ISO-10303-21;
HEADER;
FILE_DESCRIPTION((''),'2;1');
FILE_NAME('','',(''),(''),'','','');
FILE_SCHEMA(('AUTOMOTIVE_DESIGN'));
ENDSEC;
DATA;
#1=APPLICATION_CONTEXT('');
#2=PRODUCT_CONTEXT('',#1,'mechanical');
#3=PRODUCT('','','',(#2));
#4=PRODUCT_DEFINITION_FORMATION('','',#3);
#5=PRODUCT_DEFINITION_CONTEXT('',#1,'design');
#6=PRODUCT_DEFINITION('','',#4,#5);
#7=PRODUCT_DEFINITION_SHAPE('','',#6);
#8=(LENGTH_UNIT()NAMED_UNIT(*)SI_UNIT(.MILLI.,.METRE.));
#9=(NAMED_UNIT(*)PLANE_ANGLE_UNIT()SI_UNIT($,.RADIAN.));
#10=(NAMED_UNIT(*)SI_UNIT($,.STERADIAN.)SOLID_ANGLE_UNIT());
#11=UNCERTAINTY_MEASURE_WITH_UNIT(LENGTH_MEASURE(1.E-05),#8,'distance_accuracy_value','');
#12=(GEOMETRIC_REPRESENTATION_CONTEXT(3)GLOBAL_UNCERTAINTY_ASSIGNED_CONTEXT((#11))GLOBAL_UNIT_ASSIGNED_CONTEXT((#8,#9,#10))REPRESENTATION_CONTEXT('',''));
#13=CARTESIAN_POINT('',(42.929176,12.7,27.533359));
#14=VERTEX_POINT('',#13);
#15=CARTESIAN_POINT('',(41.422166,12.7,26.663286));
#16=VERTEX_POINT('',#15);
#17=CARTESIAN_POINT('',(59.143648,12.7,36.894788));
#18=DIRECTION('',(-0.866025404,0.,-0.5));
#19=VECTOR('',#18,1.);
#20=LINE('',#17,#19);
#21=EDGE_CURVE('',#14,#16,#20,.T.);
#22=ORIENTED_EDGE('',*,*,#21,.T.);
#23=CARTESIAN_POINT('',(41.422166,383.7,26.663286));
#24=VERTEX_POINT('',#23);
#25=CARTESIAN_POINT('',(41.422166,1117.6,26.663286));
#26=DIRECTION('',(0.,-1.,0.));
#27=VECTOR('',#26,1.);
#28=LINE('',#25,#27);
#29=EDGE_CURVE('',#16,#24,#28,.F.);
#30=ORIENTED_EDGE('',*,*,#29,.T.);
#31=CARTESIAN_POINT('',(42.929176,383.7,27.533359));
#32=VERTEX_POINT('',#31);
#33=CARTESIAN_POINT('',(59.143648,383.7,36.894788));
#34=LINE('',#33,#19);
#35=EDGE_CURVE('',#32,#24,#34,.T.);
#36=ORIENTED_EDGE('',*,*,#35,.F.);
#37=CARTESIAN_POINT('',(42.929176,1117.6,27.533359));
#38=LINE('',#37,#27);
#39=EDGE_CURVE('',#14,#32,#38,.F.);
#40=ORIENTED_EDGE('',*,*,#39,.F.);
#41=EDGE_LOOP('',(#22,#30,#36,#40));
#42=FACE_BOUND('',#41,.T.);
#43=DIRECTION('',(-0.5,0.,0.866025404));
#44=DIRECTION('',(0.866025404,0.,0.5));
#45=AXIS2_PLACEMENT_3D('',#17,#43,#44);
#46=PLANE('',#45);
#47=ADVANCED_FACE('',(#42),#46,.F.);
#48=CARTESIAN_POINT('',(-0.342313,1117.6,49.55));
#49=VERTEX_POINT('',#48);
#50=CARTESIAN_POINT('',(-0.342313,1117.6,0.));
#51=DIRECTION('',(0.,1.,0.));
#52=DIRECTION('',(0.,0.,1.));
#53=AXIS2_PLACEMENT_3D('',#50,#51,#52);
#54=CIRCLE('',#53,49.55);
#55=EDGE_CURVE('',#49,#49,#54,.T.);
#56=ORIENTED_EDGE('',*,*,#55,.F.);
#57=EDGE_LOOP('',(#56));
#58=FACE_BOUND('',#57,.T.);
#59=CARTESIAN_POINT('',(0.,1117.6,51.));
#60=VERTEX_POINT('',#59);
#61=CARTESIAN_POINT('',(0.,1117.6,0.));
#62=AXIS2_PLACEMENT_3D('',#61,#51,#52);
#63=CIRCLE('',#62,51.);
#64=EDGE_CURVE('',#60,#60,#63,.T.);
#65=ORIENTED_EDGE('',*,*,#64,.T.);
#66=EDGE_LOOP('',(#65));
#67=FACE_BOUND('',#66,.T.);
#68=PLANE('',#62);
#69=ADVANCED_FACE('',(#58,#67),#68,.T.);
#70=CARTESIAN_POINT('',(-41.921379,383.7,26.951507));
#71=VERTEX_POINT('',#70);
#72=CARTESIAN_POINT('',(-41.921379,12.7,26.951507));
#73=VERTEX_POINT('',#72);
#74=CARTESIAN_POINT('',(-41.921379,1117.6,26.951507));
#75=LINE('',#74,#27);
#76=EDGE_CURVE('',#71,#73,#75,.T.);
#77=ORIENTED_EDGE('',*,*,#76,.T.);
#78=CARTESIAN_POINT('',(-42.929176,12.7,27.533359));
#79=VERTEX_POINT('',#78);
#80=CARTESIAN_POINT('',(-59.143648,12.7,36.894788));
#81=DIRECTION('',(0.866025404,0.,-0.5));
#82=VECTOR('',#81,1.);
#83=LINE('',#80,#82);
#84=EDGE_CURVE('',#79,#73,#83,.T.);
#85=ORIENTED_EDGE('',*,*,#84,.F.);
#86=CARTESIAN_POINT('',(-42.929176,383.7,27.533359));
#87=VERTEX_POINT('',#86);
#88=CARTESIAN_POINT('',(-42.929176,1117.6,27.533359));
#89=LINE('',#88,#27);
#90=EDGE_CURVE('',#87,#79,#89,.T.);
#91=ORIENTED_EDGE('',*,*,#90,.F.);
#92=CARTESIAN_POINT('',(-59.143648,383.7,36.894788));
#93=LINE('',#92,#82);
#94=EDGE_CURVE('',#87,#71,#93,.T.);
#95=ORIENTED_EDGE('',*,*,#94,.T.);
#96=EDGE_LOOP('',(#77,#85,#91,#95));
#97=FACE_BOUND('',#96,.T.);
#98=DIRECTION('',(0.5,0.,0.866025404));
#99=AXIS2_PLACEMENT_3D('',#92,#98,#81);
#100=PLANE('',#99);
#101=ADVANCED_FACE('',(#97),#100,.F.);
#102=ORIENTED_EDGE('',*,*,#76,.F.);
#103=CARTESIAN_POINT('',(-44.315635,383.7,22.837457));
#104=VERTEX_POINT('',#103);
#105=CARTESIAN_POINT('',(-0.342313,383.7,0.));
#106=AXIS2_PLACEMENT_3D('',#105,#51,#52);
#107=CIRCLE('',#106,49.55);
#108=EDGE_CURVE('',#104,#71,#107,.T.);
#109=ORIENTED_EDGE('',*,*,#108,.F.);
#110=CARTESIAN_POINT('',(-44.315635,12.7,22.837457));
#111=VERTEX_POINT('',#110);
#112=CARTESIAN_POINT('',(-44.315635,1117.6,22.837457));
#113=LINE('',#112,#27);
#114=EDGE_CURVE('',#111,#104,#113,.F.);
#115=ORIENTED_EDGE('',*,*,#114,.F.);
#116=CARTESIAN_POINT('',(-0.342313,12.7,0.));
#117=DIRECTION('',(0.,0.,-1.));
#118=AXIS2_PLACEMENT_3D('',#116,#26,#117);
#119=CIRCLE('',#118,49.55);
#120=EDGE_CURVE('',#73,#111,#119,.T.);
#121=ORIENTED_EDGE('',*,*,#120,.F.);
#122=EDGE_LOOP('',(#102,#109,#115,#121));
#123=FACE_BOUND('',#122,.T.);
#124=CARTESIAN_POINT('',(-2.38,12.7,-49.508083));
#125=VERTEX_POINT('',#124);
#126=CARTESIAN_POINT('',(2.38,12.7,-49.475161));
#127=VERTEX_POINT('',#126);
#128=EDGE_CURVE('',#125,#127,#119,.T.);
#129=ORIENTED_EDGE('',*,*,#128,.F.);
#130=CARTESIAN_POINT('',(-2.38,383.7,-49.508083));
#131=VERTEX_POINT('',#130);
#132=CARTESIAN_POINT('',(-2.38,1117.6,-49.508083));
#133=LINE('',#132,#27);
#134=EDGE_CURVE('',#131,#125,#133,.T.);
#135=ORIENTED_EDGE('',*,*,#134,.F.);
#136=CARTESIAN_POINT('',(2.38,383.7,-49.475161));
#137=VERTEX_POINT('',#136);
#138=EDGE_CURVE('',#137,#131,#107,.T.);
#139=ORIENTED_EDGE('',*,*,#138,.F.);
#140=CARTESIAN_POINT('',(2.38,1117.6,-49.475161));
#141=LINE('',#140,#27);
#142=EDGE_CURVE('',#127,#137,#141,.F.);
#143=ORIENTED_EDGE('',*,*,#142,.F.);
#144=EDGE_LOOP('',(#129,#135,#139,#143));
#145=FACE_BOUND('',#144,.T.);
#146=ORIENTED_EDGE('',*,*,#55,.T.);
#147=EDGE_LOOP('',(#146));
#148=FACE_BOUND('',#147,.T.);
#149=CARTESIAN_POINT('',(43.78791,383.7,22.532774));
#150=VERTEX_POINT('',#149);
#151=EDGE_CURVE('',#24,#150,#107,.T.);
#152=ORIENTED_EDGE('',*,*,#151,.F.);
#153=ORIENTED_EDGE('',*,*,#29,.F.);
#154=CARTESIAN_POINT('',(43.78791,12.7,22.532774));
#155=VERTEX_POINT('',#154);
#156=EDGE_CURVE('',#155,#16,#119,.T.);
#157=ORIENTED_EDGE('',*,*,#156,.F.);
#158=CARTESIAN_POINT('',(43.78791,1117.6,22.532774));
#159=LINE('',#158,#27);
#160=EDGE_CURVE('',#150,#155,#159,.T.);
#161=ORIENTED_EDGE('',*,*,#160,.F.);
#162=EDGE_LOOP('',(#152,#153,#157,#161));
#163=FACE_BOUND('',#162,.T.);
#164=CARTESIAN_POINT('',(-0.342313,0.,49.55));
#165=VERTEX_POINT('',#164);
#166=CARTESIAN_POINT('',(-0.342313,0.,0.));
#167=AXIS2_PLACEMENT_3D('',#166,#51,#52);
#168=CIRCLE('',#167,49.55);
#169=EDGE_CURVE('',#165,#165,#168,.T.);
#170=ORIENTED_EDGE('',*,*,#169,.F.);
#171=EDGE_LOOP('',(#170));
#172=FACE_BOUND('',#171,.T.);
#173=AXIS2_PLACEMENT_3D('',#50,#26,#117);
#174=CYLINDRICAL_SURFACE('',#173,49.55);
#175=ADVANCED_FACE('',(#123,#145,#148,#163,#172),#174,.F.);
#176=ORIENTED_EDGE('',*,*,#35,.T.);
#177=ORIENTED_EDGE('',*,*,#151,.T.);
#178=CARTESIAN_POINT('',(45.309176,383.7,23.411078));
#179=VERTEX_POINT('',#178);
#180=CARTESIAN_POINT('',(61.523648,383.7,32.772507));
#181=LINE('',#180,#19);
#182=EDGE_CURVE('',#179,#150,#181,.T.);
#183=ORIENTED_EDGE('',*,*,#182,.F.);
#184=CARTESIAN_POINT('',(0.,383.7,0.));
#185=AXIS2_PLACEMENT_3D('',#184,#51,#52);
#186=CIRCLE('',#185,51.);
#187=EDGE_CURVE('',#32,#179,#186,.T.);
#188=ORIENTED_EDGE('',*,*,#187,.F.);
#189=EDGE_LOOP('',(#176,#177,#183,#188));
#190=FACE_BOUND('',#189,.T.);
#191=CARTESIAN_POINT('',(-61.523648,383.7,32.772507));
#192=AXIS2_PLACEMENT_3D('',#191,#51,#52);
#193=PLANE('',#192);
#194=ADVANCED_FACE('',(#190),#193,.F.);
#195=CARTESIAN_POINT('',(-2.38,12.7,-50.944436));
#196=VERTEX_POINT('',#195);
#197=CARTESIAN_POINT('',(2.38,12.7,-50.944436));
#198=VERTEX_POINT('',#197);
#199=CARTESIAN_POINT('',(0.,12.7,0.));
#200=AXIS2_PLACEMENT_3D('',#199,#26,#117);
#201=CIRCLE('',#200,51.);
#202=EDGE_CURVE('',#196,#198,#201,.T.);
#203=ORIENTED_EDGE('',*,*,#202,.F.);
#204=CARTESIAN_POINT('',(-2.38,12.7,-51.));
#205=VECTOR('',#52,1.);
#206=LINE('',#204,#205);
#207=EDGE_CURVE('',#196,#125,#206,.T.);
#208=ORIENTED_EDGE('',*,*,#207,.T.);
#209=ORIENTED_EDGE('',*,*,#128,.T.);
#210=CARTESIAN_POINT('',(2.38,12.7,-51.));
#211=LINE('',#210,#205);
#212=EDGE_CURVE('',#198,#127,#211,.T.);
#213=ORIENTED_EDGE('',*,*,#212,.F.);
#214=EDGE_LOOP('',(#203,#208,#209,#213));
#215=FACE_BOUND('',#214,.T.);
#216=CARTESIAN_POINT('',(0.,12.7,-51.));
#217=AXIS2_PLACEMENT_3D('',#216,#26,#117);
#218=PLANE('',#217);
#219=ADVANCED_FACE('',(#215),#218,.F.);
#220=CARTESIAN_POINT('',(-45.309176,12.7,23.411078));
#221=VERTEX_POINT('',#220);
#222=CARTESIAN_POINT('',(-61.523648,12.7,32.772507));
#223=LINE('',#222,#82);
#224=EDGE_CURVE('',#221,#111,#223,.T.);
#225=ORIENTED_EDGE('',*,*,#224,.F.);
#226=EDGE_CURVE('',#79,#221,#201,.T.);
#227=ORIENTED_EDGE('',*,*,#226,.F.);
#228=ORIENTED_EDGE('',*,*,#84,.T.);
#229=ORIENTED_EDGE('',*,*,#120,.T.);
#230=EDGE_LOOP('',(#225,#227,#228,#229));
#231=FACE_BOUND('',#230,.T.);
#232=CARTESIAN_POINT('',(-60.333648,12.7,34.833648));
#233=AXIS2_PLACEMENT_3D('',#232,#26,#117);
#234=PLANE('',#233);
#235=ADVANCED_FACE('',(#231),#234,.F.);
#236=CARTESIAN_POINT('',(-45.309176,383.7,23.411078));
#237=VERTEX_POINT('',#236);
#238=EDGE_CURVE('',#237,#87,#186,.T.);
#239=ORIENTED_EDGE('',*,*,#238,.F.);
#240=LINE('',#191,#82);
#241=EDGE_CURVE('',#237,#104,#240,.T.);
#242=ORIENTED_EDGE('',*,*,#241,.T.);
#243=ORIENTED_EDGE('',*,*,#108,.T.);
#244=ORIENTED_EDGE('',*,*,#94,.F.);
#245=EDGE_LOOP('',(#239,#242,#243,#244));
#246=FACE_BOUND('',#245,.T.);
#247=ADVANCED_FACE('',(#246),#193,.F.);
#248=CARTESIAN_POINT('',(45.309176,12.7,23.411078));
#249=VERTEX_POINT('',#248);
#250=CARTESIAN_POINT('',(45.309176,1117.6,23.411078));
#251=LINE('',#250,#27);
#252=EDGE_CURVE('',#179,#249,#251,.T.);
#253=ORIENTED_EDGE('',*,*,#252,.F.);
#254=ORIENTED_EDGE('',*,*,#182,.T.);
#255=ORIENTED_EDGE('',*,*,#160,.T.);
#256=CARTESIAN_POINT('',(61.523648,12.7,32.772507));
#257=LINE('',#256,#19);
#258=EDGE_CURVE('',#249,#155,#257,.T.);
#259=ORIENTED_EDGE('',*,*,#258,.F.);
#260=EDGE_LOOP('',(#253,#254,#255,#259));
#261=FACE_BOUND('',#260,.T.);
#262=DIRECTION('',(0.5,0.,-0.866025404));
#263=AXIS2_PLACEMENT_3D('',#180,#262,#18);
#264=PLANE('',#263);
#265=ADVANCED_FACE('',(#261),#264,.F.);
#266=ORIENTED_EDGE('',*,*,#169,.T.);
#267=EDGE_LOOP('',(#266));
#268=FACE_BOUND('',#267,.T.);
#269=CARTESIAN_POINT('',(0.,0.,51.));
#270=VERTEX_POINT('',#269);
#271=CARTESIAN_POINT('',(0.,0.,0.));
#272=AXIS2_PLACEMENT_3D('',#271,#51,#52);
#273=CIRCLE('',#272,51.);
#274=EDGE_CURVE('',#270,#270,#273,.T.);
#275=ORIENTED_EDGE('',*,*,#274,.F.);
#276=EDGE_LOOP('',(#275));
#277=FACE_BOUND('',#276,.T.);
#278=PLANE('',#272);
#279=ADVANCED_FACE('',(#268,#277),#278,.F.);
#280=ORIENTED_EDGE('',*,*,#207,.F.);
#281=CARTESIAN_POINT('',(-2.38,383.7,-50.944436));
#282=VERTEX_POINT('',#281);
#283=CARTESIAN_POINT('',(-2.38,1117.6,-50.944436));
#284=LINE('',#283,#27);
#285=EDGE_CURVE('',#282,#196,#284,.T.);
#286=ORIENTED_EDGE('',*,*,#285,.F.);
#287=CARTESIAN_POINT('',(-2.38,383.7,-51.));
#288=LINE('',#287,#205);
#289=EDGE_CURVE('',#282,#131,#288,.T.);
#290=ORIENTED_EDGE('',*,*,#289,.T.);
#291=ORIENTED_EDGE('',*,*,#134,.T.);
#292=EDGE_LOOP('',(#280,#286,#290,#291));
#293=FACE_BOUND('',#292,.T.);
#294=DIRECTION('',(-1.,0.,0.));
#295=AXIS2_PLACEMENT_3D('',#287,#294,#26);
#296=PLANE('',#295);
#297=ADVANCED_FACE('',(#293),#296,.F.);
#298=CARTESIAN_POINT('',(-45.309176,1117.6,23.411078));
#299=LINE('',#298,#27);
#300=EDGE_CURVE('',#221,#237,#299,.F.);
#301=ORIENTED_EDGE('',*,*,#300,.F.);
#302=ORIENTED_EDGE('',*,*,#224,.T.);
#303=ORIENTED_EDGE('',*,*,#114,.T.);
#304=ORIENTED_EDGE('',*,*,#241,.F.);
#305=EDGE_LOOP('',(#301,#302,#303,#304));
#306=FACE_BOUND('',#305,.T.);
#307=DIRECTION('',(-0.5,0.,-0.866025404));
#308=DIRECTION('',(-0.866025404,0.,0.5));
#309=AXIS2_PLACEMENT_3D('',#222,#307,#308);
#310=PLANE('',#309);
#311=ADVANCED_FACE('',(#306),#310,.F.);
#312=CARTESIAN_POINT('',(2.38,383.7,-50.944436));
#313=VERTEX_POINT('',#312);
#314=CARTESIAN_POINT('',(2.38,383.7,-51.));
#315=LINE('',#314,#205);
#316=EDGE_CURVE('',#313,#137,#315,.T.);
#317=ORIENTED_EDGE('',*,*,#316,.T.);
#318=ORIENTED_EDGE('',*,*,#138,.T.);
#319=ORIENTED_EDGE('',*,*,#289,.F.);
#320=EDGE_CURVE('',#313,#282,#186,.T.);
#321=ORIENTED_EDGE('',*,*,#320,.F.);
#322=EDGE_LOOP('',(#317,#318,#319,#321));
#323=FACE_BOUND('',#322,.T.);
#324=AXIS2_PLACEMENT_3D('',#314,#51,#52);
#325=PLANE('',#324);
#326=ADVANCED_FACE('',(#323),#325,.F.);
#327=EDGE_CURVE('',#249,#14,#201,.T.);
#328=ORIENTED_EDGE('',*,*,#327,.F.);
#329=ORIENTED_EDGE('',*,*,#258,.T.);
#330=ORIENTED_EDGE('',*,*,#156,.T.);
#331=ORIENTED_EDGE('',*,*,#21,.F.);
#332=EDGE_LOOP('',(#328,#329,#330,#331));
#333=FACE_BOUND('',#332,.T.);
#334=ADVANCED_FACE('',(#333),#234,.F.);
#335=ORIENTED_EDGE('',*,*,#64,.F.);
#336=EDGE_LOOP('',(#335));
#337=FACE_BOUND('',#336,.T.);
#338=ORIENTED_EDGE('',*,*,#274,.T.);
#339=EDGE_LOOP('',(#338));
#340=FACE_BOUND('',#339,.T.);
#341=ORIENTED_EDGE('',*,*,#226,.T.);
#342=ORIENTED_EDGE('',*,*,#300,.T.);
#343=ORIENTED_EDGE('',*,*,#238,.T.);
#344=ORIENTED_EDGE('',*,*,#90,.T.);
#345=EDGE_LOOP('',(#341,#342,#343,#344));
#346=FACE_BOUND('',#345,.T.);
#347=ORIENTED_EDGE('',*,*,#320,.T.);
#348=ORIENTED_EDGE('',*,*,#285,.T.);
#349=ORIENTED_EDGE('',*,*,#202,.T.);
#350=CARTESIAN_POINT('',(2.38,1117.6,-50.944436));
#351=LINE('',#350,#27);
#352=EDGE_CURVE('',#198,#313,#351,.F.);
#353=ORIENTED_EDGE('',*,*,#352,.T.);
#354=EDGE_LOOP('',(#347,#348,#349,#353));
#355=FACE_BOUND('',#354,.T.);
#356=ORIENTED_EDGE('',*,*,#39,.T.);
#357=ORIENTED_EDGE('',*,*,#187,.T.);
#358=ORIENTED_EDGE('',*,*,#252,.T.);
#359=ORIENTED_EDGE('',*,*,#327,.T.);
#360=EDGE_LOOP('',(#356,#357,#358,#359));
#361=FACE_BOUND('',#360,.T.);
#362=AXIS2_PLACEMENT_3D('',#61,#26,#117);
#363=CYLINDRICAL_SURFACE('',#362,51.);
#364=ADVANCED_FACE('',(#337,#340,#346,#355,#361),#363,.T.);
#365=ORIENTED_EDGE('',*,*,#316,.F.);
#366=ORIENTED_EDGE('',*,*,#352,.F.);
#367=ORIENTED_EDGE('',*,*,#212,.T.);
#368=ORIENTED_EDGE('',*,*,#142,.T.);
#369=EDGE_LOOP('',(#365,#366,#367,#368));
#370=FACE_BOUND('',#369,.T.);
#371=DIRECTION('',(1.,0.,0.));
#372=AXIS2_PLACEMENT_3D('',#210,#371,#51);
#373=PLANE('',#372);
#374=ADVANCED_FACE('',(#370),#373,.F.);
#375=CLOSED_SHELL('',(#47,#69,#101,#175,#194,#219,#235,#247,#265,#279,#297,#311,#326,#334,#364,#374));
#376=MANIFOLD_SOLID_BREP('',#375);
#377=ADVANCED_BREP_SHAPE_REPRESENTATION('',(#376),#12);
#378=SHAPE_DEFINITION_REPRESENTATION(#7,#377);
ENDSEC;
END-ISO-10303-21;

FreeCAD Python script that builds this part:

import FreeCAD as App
import Part
import Sketcher
from FreeCAD import Vector
Q = App.Units.Quantity

doc = App.newDocument("Part")
body = doc.addObject("PartDesign::Body", "Body")

# Sketch on XZ plane
sketch1 = body.newObject("Sketcher::SketchObject", "Sketch")
sketch1.AttachmentSupport = (doc.getObject("XZ_Plane"), [""])
sketch1.MapMode = "FlatFace"
sketch1.addGeometry(Part.Circle(Vector(0, 0, 0), Vector(0, 0, 1), 51), False)
sketch1.addGeometry(Part.Circle(Vector(0, 0, 0), Vector(0, 0, 1), 50), False)
sketch1.addConstraint(Sketcher.Constraint("Coincident", 0, 3, -1, 1))
sketch1.addConstraint(Sketcher.Constraint("PointOnObject", 1, 3, -1))
sketch1.addConstraint(Sketcher.Constraint("Diameter", 0, Q("102 mm")))
sketch1.addConstraint(Sketcher.Constraint("Diameter", 1, Q("99.1 mm")))
sketch1.addConstraint(Sketcher.Constraint("DistanceX", 1, 3, -1, 1, Q("0.342313 mm")))
pad1 = body.newObject("PartDesign::Pad", "Pad")
pad1.Profile = sketch1
pad1.Length = 1117.6
pad1.Reversed = True

# Sketch on XY plane
sketch2 = body.newObject("Sketcher::SketchObject", "Sketch001")
sketch2.AttachmentSupport = (doc.getObject("XY_Plane"), [""])
sketch2.MapMode = "FlatFace"
sketch2.addGeometry(Part.LineSegment(Vector(2.4, 12.7, 0), Vector(2.4, 383.7, 0)), False)
sketch2.addGeometry(Part.LineSegment(Vector(2.4, 383.7, 0), Vector(-2.4, 383.7, 0)), False)
sketch2.addGeometry(Part.LineSegment(Vector(-2.4, 383.7, 0), Vector(-2.4, 12.7, 0)), False)
sketch2.addGeometry(Part.LineSegment(Vector(-2.4, 12.7, 0), Vector(2.4, 12.7, 0)), False)
sketch2.addConstraint(Sketcher.Constraint("Coincident", 0, 2, 1, 1))
sketch2.addConstraint(Sketcher.Constraint("Coincident", 1, 2, 2, 1))
sketch2.addConstraint(Sketcher.Constraint("Coincident", 2, 2, 3, 1))
sketch2.addConstraint(Sketcher.Constraint("Coincident", 3, 2, 0, 1))
sketch2.addConstraint(Sketcher.Constraint("Vertical", 0))
sketch2.addConstraint(Sketcher.Constraint("Horizontal", 1))
sketch2.addConstraint(Sketcher.Constraint("Vertical", 2))
sketch2.addConstraint(Sketcher.Constraint("Horizontal", 3))
sketch2.addConstraint(Sketcher.Constraint("DistanceY", 0, 1, 0, 2, Q("371 mm")))
sketch2.addConstraint(Sketcher.Constraint("DistanceX", 1, 2, 1, 1, Q("4.76 mm")))
sketch2.addConstraint(Sketcher.Constraint("DistanceY", -1, 1, 0, 2, Q("383.7 mm")))
sketch2.addConstraint(Sketcher.Constraint("DistanceX", -1, 1, 0, 2, Q("2.38 mm")))
pocket1 = body.newObject("PartDesign::Pocket", "Pocket")
pocket1.Profile = sketch2
pocket1.Type = "ThroughAll"
doc.recompute()

polarpattern = body.newObject("PartDesign::PolarPattern", "PolarPattern")
polarpattern.Originals = [pocket1]
polarpattern.Axis = (doc.getObject("Y_Axis"), [""])
polarpattern.Angle = 360
polarpattern.Occurrences = 3
body.Tip = polarpattern

doc.recompute()
